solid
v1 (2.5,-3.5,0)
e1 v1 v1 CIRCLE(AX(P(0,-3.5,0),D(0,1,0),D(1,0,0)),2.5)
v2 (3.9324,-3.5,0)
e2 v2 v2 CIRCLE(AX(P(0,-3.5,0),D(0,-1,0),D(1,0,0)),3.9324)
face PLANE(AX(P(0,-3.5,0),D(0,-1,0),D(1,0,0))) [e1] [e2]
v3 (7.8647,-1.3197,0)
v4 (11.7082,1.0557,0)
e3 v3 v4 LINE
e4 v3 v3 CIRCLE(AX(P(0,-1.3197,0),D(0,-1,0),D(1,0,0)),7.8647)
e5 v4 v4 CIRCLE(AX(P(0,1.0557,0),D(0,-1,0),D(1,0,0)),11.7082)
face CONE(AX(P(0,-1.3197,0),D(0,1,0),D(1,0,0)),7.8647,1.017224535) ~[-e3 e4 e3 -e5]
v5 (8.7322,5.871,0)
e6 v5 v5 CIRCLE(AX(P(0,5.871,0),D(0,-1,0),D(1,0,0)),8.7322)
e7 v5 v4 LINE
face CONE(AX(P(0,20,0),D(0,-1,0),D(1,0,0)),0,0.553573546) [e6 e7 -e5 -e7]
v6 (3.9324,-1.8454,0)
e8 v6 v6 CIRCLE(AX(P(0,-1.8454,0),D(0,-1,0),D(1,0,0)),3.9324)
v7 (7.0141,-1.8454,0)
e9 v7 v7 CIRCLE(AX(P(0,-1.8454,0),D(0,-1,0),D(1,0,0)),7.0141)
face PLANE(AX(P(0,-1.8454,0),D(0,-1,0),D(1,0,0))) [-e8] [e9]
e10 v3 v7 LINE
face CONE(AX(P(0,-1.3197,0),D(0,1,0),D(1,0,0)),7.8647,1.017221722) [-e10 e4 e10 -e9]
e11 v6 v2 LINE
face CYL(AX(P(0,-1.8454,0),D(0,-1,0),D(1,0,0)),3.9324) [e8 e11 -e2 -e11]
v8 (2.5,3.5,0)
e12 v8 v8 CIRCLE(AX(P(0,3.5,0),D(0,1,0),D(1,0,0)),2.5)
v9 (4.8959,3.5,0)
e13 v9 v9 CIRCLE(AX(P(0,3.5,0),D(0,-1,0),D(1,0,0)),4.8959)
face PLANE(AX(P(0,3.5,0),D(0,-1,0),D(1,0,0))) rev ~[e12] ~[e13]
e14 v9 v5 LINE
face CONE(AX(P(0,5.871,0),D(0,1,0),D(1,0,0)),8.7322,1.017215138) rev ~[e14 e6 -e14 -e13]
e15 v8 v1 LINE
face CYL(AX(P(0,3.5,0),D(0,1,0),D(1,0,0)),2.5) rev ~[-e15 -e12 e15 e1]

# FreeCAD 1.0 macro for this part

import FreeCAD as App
import Part
import Sketcher
from FreeCAD import Vector

doc = App.newDocument("Part")
body = doc.addObject("PartDesign::Body", "Body")

# Sketch on XY plane
sketch1 = body.newObject("Sketcher::SketchObject", "Sketch")
sketch1.AttachmentSupport = (doc.getObject("XY_Plane"), [""])
sketch1.MapMode = "FlatFace"
sketch1.addGeometry([
    Part.LineSegment(Vector(11.7, 1.1, 0), Vector(8.7, 5.9, 0)),  # 0
    Part.LineSegment(Vector(8.7, 5.9, 0), Vector(4.9, 3.5, 0)),  # 1
    Part.LineSegment(Vector(4.9, 3.5, 0), Vector(0, 3.5, 0)),  # 2
    Part.LineSegment(Vector(0, 3.5, 0), Vector(0, -3.5, 0)),  # 3
    Part.LineSegment(Vector(0, -3.5, 0), Vector(3.9, -3.5, 0)),  # 4
    Part.LineSegment(Vector(3.9, -3.5, 0), Vector(3.9, -1.8, 0)),  # 5
    Part.LineSegment(Vector(3.9, -1.8, 0), Vector(7, -1.8, 0)),  # 6
    Part.LineSegment(Vector(7, -1.8, 0), Vector(7.9, -1.3, 0)),  # 7
    Part.LineSegment(Vector(7.9, -1.3, 0), Vector(11.7, 1.1, 0)),  # 8
], False)
sketch1.addConstraint([
    Sketcher.Constraint("Coincident", 0, 2, 1, 1),
    Sketcher.Constraint("Coincident", 1, 2, 2, 1),
    Sketcher.Constraint("Coincident", 2, 2, 3, 1),
    Sketcher.Constraint("Coincident", 3, 2, 4, 1),
    Sketcher.Constraint("Coincident", 4, 2, 5, 1),
    Sketcher.Constraint("Coincident", 5, 2, 6, 1),
    Sketcher.Constraint("Coincident", 6, 2, 7, 1),
    Sketcher.Constraint("Coincident", 7, 2, 8, 1),
    Sketcher.Constraint("Coincident", 8, 2, 0, 1),
    Sketcher.Constraint("Horizontal", 2),
    Sketcher.Constraint("Vertical", 3),
    Sketcher.Constraint("Horizontal", 4),
    Sketcher.Constraint("Vertical", 5),
    Sketcher.Constraint("Horizontal", 6),
    Sketcher.Constraint("Symmetric", 2, 2, 3, 2, -1, 1),
    Sketcher.Constraint("Perpendicular", 0, 1),
    Sketcher.Constraint("Parallel", 1, 7),
    Sketcher.Constraint("Parallel", 7, 8),
    Sketcher.Constraint("DistanceY", 3, 2, 3, 1, 7.0),
    Sketcher.Constraint("Distance", 7, 1.0),
    Sketcher.Constraint("DistanceX", 2, 2, 2, 1, 4.896),
    Sketcher.Constraint("DistanceX", 4, 1, 4, 2, 3.9324),
    Sketcher.Constraint("DistanceX", 6, 1, 6, 2, 3.0817),
    Sketcher.Constraint("DistanceY", 5, 1, 5, 2, 1.6546),
    Sketcher.Constraint("DistanceY", -1, 1, 0, 2, 5.871),
    Sketcher.Constraint("DistanceX", 6, 2, 0, 2, 1.718),
])
revolution = body.newObject("PartDesign::Revolution", "Revolution")
revolution.Profile = sketch1
revolution.ReferenceAxis = (sketch1, ["V_Axis"])
revolution.Angle = 360

# Sketch on XZ plane
sketch2 = body.newObject("Sketcher::SketchObject", "Sketch001")
sketch2.AttachmentSupport = (doc.getObject("XZ_Plane"), [""])
sketch2.MapMode = "FlatFace"
sketch2.AttachmentOffset = App.Placement(Vector(0, 0, -3.5), App.Rotation())
sketch2.addGeometry(Part.Circle(Vector(0, 0, 0), Vector(0, 0, 1), 2.5), False)
sketch2.addConstraint([
    Sketcher.Constraint("Coincident", 0, 3, -1, 1),
    Sketcher.Constraint("Diameter", 0, 5.0),
])
pocket1 = body.newObject("PartDesign::Pocket", "Pocket")
pocket1.Profile = sketch2
pocket1.Length = 30.75
pocket1.Reversed = True

doc.recompute()
